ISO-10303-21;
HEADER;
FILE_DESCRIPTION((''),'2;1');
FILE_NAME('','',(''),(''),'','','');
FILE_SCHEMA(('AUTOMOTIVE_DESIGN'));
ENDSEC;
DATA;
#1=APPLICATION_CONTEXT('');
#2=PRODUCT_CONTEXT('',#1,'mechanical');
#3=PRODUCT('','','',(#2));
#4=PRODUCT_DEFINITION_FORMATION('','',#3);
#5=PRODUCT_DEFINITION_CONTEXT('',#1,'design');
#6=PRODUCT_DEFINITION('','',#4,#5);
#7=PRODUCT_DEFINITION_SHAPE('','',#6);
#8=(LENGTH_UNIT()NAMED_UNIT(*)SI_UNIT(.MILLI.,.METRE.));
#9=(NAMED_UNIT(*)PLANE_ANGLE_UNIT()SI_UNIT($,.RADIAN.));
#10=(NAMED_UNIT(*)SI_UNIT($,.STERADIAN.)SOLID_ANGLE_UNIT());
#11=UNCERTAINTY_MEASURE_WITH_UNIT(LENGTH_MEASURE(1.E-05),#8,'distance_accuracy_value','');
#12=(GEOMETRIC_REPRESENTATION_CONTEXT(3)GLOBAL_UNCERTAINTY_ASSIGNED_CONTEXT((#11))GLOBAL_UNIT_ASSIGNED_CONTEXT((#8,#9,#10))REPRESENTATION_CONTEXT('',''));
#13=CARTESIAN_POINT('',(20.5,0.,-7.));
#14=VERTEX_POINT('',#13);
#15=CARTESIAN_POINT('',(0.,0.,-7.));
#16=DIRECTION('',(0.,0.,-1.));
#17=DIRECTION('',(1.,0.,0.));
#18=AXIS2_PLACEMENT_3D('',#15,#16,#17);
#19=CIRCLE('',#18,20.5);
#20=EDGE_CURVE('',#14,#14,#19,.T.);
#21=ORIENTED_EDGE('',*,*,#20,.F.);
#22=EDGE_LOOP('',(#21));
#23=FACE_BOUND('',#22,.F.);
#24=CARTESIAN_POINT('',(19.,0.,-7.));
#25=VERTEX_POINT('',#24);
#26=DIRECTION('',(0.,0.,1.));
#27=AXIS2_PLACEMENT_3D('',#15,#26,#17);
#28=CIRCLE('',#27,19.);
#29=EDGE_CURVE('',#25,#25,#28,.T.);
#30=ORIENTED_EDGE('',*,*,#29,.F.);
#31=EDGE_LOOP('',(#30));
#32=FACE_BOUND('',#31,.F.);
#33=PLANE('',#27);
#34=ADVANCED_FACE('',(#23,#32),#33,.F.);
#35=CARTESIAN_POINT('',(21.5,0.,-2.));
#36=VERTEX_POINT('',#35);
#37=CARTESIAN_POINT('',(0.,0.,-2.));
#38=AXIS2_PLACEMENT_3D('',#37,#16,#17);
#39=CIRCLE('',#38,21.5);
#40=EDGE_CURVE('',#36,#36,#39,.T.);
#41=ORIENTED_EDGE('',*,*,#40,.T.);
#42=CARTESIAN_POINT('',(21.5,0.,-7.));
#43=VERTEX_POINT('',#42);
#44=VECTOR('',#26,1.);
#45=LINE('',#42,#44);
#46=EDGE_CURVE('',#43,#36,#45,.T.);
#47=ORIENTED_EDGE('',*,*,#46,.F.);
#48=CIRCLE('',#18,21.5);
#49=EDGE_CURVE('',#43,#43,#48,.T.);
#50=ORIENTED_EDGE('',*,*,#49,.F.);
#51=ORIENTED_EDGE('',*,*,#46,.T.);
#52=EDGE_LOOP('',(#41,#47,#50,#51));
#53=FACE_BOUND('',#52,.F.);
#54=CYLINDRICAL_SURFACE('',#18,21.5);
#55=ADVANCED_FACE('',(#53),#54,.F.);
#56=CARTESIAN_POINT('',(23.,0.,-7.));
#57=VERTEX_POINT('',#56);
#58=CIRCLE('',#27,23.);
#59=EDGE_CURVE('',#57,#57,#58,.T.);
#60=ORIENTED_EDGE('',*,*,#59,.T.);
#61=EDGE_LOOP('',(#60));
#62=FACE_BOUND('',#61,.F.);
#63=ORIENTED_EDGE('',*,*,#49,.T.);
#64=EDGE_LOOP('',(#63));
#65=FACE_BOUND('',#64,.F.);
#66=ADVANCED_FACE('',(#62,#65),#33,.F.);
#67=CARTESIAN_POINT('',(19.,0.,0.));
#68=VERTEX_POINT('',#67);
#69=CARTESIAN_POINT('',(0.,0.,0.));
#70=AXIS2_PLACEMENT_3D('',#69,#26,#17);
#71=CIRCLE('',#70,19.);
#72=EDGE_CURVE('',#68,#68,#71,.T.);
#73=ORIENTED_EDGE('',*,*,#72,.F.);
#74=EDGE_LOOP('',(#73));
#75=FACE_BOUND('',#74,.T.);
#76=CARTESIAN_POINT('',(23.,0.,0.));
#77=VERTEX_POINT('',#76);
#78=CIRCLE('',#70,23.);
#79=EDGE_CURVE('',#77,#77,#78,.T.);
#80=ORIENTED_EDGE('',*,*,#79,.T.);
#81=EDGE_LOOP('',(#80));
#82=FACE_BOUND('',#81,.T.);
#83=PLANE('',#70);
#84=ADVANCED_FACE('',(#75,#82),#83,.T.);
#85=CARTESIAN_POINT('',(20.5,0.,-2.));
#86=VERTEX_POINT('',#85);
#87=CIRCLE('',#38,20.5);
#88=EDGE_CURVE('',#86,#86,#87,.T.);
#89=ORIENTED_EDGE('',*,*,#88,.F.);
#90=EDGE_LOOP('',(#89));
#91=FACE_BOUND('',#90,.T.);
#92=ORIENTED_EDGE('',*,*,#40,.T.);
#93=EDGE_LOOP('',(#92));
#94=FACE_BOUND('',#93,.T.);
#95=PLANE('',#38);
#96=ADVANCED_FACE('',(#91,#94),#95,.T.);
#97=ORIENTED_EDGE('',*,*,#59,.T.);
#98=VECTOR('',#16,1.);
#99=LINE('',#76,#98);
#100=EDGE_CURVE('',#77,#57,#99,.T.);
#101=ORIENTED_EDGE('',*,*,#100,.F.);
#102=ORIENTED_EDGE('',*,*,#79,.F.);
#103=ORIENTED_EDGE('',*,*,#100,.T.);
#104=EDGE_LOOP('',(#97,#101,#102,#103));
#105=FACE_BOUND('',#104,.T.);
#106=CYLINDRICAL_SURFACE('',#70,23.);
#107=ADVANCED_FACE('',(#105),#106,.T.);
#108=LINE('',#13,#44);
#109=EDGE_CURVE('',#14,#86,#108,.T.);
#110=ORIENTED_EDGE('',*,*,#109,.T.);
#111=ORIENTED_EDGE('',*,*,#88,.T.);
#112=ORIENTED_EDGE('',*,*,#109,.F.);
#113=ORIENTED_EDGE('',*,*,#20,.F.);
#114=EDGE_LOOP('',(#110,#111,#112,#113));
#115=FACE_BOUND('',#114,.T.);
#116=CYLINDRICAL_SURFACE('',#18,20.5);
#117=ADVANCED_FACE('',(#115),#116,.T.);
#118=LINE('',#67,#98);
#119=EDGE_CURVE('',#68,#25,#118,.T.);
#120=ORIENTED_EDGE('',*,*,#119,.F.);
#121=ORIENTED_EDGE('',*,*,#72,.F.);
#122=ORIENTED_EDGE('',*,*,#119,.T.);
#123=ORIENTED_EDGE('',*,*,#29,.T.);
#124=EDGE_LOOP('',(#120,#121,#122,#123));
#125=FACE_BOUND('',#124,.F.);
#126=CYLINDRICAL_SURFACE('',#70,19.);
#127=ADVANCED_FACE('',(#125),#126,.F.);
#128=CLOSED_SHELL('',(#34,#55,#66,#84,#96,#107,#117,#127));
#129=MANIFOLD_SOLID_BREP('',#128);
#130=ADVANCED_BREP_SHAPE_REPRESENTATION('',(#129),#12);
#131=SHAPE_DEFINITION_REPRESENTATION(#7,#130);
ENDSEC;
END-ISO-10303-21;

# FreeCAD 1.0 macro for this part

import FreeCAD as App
import Part
import Sketcher
Q = App.Units.Quantity

doc = App.newDocument("Part")
params = doc.addObject("Spreadsheet::Sheet", "Params")
for row, (alias, value) in enumerate([
    ("sketch1_diameter", "46 mm"),
    ("sketch1_diameter2", "38 mm"),
    ("pad1_length", "7 mm"),
    ("sketch2_diameter", "43 mm"),
    ("sketch2_diameter2", "41 mm"),
    ("pocket1_length", "5 mm"),
], start=1):
    params.set(f"A{row}", alias)
    params.set(f"B{row}", "=" + value)
    params.setAlias(f"B{row}", alias)

body = doc.addObject("PartDesign::Body", "Body")

sketch1 = body.newObject("Sketcher::SketchObject", "Sketch")
sketch1.AttachmentSupport = (doc.getObject("XY_Plane"), [""])
sketch1.MapMode = "FlatFace"
sketch1.addGeometry(Part.Circle(App.Vector(0, 0, 0), App.Vector(0, 0, 1), 23), False)
sketch1.addGeometry(Part.Circle(App.Vector(0, 0, 0), App.Vector(0, 0, 1), 19), False)
sketch1.addConstraint(Sketcher.Constraint("Coincident", 0, 3, -1, 1))
sketch1.addConstraint(Sketcher.Constraint("Coincident", 1, 3, -1, 1))
sketch1.addConstraint(Sketcher.Constraint("Diameter", 0, Q("46 mm")))
sketch1.addConstraint(Sketcher.Constraint("Diameter", 1, Q("38 mm")))
sketch1.setExpression("Constraints[2]", "Params.sketch1_diameter")
sketch1.setExpression("Constraints[3]", "Params.sketch1_diameter2")
pad1 = body.newObject("PartDesign::Pad", "Pad")
pad1.Profile = sketch1
pad1.setExpression("Length", "Params.pad1_length")
pad1.Reversed = True

sketch2 = body.newObject("Sketcher::SketchObject", "Sketch001")
sketch2.AttachmentSupport = (doc.getObject("XY_Plane"), [""])
sketch2.MapMode = "FlatFace"
sketch2.AttachmentOffset = App.Placement(App.Vector(0, 0, -7), App.Rotation())
sketch2.addGeometry(Part.Circle(App.Vector(0, 0, 0), App.Vector(0, 0, 1), 21.5), False)
sketch2.addGeometry(Part.Circle(App.Vector(0, 0, 0), App.Vector(0, 0, 1), 20.5), False)
sketch2.addConstraint(Sketcher.Constraint("Coincident", 0, 3, -1, 1))
sketch2.addConstraint(Sketcher.Constraint("Coincident", 1, 3, -1, 1))
sketch2.addConstraint(Sketcher.Constraint("Diameter", 0, Q("43 mm")))
sketch2.addConstraint(Sketcher.Constraint("Diameter", 1, Q("41 mm")))
sketch2.setExpression("Constraints[2]", "Params.sketch2_diameter")
sketch2.setExpression("Constraints[3]", "Params.sketch2_diameter2")
pocket1 = body.newObject("PartDesign::Pocket", "Pocket")
pocket1.Profile = sketch2
pocket1.setExpression("Length", "Params.pocket1_length")
pocket1.Reversed = True

doc.recompute()
